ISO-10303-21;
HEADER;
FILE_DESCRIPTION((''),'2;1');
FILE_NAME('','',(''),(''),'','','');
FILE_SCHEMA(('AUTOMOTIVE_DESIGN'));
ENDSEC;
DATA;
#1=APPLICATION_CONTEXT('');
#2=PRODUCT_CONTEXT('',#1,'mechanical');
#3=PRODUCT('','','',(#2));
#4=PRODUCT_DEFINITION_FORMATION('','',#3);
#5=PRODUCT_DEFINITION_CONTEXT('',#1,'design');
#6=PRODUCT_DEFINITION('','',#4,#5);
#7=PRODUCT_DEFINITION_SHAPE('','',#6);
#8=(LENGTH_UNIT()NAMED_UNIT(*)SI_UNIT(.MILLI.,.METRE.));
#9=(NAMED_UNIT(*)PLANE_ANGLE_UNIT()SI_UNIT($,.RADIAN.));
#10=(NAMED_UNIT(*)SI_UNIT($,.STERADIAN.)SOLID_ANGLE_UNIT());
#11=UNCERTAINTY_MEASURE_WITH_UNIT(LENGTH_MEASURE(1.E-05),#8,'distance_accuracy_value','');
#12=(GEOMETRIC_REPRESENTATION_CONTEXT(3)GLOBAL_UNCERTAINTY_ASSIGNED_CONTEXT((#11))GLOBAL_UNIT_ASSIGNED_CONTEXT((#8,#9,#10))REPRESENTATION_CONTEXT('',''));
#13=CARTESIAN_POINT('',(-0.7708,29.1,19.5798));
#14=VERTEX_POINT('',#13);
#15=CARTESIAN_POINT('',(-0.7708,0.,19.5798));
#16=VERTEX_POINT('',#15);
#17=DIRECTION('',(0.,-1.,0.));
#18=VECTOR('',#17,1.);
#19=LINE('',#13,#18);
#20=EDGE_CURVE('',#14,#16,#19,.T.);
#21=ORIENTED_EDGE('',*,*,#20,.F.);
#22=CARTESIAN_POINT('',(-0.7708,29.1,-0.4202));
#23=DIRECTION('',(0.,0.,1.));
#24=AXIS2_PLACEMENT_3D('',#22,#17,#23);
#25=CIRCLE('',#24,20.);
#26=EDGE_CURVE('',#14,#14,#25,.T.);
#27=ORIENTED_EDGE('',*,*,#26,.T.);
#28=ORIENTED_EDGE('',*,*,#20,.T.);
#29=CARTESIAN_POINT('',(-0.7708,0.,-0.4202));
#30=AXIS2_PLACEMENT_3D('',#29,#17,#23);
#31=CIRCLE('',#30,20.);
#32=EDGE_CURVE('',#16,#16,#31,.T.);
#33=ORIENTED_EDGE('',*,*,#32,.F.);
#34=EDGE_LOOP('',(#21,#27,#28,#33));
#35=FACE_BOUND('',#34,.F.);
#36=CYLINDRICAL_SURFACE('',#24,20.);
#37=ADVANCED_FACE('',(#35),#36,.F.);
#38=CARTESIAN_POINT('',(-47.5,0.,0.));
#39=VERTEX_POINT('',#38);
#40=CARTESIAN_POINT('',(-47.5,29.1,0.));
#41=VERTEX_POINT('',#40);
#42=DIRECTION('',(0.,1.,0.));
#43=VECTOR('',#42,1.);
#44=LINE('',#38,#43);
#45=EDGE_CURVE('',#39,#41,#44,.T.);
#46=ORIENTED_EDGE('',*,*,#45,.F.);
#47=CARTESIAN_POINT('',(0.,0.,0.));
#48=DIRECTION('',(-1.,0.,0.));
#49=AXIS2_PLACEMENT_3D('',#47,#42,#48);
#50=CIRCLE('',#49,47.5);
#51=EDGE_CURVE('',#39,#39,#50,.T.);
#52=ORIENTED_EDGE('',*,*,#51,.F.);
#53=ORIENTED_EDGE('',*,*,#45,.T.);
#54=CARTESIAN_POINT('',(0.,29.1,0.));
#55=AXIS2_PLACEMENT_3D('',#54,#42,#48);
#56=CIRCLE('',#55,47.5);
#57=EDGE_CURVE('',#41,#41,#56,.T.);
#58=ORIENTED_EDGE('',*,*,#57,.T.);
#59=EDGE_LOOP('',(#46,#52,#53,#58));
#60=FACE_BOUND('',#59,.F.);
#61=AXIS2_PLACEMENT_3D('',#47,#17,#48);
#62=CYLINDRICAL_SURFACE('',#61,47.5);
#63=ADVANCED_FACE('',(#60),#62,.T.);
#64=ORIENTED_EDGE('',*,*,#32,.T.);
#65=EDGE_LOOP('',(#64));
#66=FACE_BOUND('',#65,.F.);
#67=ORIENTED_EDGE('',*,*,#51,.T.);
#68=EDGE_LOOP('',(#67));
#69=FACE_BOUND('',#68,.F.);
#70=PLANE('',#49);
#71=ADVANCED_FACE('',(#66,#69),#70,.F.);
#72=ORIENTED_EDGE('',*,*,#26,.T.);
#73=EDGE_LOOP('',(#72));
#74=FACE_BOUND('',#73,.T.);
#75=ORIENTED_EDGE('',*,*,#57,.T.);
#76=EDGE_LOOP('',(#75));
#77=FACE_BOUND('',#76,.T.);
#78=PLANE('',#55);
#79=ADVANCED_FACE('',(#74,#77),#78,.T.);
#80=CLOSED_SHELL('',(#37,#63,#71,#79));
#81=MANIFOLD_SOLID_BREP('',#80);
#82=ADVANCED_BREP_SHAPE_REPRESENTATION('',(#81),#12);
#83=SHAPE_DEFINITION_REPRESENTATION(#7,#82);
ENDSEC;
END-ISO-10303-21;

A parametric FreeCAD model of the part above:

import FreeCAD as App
import Part
import Sketcher

doc = App.newDocument("Part")
body = doc.addObject("PartDesign::Body", "Body")

# Sketch on XZ plane
sketch1 = doc.addObject("Sketcher::SketchObject", "Sketch")
body.addObject(sketch1)
sketch1.AttachmentSupport = (doc.XZ_Plane, [""])
sketch1.MapMode = "FlatFace"
sketch1.addGeometry(Part.Circle(App.Vector(0, 0, 0), App.Vector(0, 0, 1), 47.5), False)
sketch1.addConstraint([
    Sketcher.Constraint("Coincident", 0, 3, -1, 1),
    Sketcher.Constraint("Diameter", 0, 95.0),
])
pad1 = doc.addObject("PartDesign::Pad", "Pad")
body.addObject(pad1)
pad1.Profile = sketch1
pad1.Length = 29.1
pad1.Reversed = True

# Sketch on XZ plane
sketch2 = doc.addObject("Sketcher::SketchObject", "Sketch001")
body.addObject(sketch2)
sketch2.AttachmentSupport = (doc.XZ_Plane, [""])
sketch2.MapMode = "FlatFace"
sketch2.AttachmentOffset = App.Placement(App.Vector(0, 0, -29.1), App.Rotation())
sketch2.addGeometry(Part.Circle(App.Vector(-0.7708, -0.4202, 0), App.Vector(0, 0, 1), 20), False)
sketch2.addConstraint([
    Sketcher.Constraint("Diameter", 0, 40.0),
    Sketcher.Constraint("DistanceX", 0, 3, -1, 1, 0.7708),
    Sketcher.Constraint("DistanceY", 0, 3, -1, 1, 0.4202),
])
doc.recompute()
hole = doc.addObject("PartDesign::Hole", "Hole")
body.addObject(hole)
hole.Profile = sketch2
hole.ThreadType = "None"
hole.Diameter = 40
hole.DepthType = "ThroughAll"
hole.Reversed = True

doc.recompute()
